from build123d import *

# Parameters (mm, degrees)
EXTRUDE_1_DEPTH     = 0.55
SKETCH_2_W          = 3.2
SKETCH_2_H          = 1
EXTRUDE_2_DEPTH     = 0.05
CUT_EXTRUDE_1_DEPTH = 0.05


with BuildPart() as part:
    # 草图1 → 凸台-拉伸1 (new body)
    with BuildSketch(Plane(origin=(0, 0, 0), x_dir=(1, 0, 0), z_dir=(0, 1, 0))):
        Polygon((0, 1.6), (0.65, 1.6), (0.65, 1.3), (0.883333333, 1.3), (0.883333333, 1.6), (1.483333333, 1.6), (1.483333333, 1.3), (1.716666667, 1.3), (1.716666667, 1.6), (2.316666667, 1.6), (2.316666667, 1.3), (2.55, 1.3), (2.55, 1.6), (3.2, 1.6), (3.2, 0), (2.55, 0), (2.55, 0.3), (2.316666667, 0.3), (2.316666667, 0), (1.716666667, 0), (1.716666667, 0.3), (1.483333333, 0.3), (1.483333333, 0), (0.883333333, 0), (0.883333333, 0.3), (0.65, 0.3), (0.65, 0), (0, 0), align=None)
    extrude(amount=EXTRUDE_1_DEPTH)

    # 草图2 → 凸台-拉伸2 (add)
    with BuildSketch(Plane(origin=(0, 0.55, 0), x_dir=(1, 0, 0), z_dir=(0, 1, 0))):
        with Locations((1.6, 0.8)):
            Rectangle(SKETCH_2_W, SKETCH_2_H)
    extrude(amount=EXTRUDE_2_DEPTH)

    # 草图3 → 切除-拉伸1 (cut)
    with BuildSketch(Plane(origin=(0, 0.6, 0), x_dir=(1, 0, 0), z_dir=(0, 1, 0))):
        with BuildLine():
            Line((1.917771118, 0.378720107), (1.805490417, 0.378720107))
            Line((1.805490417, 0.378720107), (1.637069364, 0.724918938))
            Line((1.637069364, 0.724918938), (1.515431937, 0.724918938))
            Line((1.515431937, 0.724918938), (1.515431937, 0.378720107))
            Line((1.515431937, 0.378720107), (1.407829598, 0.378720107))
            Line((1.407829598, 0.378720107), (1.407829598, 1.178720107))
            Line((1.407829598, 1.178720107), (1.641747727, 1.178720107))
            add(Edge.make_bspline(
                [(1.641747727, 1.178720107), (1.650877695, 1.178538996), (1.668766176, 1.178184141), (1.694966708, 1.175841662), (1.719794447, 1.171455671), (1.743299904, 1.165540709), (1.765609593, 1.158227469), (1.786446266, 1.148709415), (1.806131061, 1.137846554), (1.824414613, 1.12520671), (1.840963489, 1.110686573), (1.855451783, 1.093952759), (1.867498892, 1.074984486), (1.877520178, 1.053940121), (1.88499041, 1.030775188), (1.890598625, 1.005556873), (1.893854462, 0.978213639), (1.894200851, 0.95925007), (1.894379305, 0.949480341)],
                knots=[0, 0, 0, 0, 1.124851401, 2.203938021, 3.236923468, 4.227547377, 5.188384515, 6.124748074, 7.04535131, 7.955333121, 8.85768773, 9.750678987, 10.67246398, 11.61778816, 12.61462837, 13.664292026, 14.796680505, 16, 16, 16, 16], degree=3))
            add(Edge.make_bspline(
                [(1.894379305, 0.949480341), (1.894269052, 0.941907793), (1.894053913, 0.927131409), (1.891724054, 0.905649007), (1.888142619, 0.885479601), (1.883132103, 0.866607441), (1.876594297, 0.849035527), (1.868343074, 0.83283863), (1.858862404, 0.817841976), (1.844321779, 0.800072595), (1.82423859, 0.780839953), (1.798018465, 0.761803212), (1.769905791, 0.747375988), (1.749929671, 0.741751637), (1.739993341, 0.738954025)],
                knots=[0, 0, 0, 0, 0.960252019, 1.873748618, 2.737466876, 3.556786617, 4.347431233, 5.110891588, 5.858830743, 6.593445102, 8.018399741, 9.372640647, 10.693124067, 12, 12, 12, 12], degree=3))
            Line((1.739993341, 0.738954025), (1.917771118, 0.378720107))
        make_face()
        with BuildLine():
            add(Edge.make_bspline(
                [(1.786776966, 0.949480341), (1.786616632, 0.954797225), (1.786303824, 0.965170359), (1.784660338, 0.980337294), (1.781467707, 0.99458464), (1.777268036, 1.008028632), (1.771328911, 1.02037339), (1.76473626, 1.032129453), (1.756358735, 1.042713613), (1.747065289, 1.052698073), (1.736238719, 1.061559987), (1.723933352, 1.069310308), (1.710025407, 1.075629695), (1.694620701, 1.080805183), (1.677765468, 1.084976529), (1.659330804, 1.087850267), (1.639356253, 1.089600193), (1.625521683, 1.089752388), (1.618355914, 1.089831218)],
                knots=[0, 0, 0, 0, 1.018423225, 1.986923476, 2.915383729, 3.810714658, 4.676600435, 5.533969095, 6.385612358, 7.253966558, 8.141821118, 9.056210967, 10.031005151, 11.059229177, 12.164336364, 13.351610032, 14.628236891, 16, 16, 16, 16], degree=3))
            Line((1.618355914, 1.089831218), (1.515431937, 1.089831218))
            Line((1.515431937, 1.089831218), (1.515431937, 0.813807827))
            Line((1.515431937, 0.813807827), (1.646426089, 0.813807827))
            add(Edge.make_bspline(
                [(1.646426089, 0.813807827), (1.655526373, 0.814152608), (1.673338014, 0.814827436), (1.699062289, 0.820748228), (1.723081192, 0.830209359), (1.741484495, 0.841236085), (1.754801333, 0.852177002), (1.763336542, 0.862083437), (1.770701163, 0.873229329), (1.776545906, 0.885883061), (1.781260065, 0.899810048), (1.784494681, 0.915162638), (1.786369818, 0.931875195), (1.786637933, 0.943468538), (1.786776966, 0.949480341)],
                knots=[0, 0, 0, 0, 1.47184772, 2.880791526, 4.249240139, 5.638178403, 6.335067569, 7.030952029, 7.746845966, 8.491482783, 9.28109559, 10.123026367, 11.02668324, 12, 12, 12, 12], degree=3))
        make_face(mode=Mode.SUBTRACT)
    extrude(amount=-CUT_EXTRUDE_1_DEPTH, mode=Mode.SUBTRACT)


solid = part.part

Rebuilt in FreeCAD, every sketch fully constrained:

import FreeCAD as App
import Part
import Sketcher


def add_polygon(sketch, points):
    """Adds a closed chain of lines whose ends are joined by coincident constraints."""
    first, n = sketch.GeometryCount, len(points)
    for a, b in zip(points, points[1:] + points[:1]):
        sketch.addGeometry(Part.LineSegment(App.Vector(*a, 0), App.Vector(*b, 0)), False)
    for i in range(n):
        sketch.addConstraint(Sketcher.Constraint("Coincident", first + i, 2, first + (i + 1) % n, 1))

doc = App.newDocument("Part")
params = doc.addObject("Spreadsheet::Sheet", "Params")
for row, (alias, value) in enumerate([
    ("sketch1_width", "0.6 mm"),
    ("sketch1_height", "1.6 mm"),
    ("sketch1_height2", "0.3 mm"),
    ("sketch1_width2", "0.65 mm"),
    ("pad1_length", "0.55 mm"),
    ("sketch2_height", "1 mm"),
    ("sketch2_width", "3.2 mm"),
    ("pad2_length", "0.05 mm"),
    ("sketch3_height", "0.8 mm"),
    ("pocket1_length", "0.05 mm"),
], start=1):
    params.set(f"A{row}", alias)
    params.set(f"B{row}", "=" + value)
    params.setAlias(f"B{row}", alias)

body = doc.addObject("PartDesign::Body", "Body")

sketch1 = doc.addObject("Sketcher::SketchObject", "Sketch")
body.addObject(sketch1)
sketch1.AttachmentSupport = (doc.XZ_Plane, [""])
sketch1.MapMode = "FlatFace"
add_polygon(sketch1, [(0.65, -1.6), (0, -1.6), (0, 0), (0.65, 0), (0.65, -0.3), (0.883333, -0.3), (0.883333, 0), (1.483333, 0), (1.483333, -0.3), (1.716667, -0.3), (1.716667, 0), (2.316667, 0), (2.316667, -0.3), (2.55, -0.3), (2.55, 0), (3.2, 0), (3.2, -1.6), (2.55, -1.6), (2.55, -1.3), (2.316667, -1.3), (2.316667, -1.6), (1.716667, -1.6), (1.716667, -1.3), (1.483333, -1.3), (1.483333, -1.6), (0.883333, -1.6), (0.883333, -1.3), (0.65, -1.3)])
sketch1.addConstraint([
    Sketcher.Constraint("Horizontal", 0),
    Sketcher.Constraint("Vertical", 1),
    Sketcher.Constraint("Horizontal", 2),
    Sketcher.Constraint("Vertical", 3),
    Sketcher.Constraint("Horizontal", 4),
    Sketcher.Constraint("Vertical", 5),
    Sketcher.Constraint("Horizontal", 6),
    Sketcher.Constraint("Vertical", 7),
    Sketcher.Constraint("Horizontal", 8),
    Sketcher.Constraint("Vertical", 9),
    Sketcher.Constraint("Horizontal", 10),
    Sketcher.Constraint("Vertical", 11),
    Sketcher.Constraint("Horizontal", 12),
    Sketcher.Constraint("Vertical", 13),
    Sketcher.Constraint("Horizontal", 14),
    Sketcher.Constraint("Vertical", 15),
    Sketcher.Constraint("Horizontal", 16),
    Sketcher.Constraint("Vertical", 17),
    Sketcher.Constraint("Horizontal", 18),
    Sketcher.Constraint("Vertical", 19),
    Sketcher.Constraint("Horizontal", 20),
    Sketcher.Constraint("Vertical", 21),
    Sketcher.Constraint("Horizontal", 22),
    Sketcher.Constraint("Vertical", 23),
    Sketcher.Constraint("Horizontal", 24),
    Sketcher.Constraint("Vertical", 25),
    Sketcher.Constraint("Horizontal", 26),
    Sketcher.Constraint("Vertical", 27),
    Sketcher.Constraint("Coincident", 1, 2, -1, 1),
    Sketcher.Constraint("PointOnObject", 5, 2, -1),
    Sketcher.Constraint("PointOnObject", 9, 2, -1),
    Sketcher.Constraint("PointOnObject", 13, 2, -1),
    Sketcher.Constraint("Horizontal", 4, 2, 7, 2),
    Sketcher.Constraint("Horizontal", 8, 2, 11, 2),
    Sketcher.Constraint("Horizontal", 0, 2, 15, 2),
    Sketcher.Constraint("Horizontal", 16, 2, 19, 2),
    Sketcher.Constraint("Horizontal", 18, 2, 21, 2),
    Sketcher.Constraint("Horizontal", 20, 2, 23, 2),
    Sketcher.Constraint("Horizontal", 22, 2, 25, 2),
    Sketcher.Constraint("Vertical", 13, 2, 16, 2),
    Sketcher.Constraint("Vertical", 11, 2, 18, 2),
    Sketcher.Constraint("Vertical", 9, 2, 20, 2),
    Sketcher.Constraint("Vertical", 7, 2, 22, 2),
    Sketcher.Constraint("Vertical", 5, 2, 24, 2),
    Sketcher.Constraint("Vertical", 3, 2, 26, 2),
    Sketcher.Constraint("Equal", 4, 8),
    Sketcher.Constraint("Equal", 6, 10),
    Sketcher.Constraint("Equal", 8, 12),
    Sketcher.Constraint("Equal", 2, 14),
    Sketcher.Constraint("Equal", 13, 17),
    Sketcher.Constraint("DistanceX", 6, 1, 6, 2, 0.6),
    Sketcher.Constraint("DistanceY", 1, 1, 1, 2, 1.6),
    Sketcher.Constraint("DistanceY", 3, 2, 3, 1, 0.3),
    Sketcher.Constraint("DistanceX", 0, 2, 0, 1, 0.65),
    Sketcher.Constraint("DistanceX", -1, 1, 14, 2, 3.2),
])
sketch1.setExpression("Constraints[78]", "Params.sketch1_width")
sketch1.setExpression("Constraints[79]", "Params.sketch1_height")
sketch1.setExpression("Constraints[80]", "Params.sketch1_height2")
sketch1.setExpression("Constraints[81]", "Params.sketch1_width2")
pad1 = doc.addObject("PartDesign::Pad", "Pad")
body.addObject(pad1)
pad1.Profile = sketch1
pad1.setExpression("Length", "Params.pad1_length")
pad1.Reversed = True

sketch2 = doc.addObject("Sketcher::SketchObject", "Sketch001")
body.addObject(sketch2)
sketch2.AttachmentSupport = (doc.XZ_Plane, [""])
sketch2.MapMode = "FlatFace"
sketch2.AttachmentOffset = App.Placement(App.Vector(0, 0, -0.55), App.Rotation())
add_polygon(sketch2, [(0, -1.3), (0, -0.3), (3.2, -0.3), (3.2, -1.3)])
sketch2.addConstraint([
    Sketcher.Constraint("Vertical", 0),
    Sketcher.Constraint("Horizontal", 1),
    Sketcher.Constraint("Vertical", 2),
    Sketcher.Constraint("Horizontal", 3),
    Sketcher.Constraint("PointOnObject", 0, 2, -2),
    Sketcher.Constraint("DistanceY", 0, 1, 0, 2, 1.0),
    Sketcher.Constraint("DistanceX", 1, 1, 1, 2, 3.2),
    Sketcher.Constraint("DistanceY", 0, 2, -1, 1, 0.3),
])
sketch2.setExpression("Constraints[9]", "Params.sketch2_height")
sketch2.setExpression("Constraints[10]", "Params.sketch2_width")
pad2 = doc.addObject("PartDesign::Pad", "Pad001")
body.addObject(pad2)
pad2.Profile = sketch2
pad2.setExpression("Length", "Params.pad2_length")
pad2.Reversed = True

sketch3 = doc.addObject("Sketcher::SketchObject", "Sketch002")
body.addObject(sketch3)
sketch3.AttachmentSupport = (doc.XZ_Plane, [""])
sketch3.MapMode = "FlatFace"
sketch3.AttachmentOffset = App.Placement(App.Vector(0, 0, -0.6), App.Rotation())
sketch3.addGeometry([
    Part.LineSegment(App.Vector(1.80549, -0.37872, 0), App.Vector(1.917771, -0.37872, 0)),
    Part.LineSegment(App.Vector(1.917771, -0.37872, 0), App.Vector(1.739993, -0.738954, 0)),
    Part.BSplineCurve([App.Vector(1.894379, -0.94948, 0), App.Vector(1.894269, -0.941908, 0), App.Vector(1.894054, -0.927131, 0), App.Vector(1.891724, -0.905649, 0), App.Vector(1.888143, -0.88548, 0), App.Vector(1.883132, -0.866607, 0), App.Vector(1.876594, -0.849036, 0), App.Vector(1.868343, -0.832839, 0), App.Vector(1.858862, -0.817842, 0), App.Vector(1.844322, -0.800073, 0), App.Vector(1.824239, -0.78084, 0), App.Vector(1.798018, -0.761803, 0), App.Vector(1.769906, -0.747376, 0), App.Vector(1.74993, -0.741752, 0), App.Vector(1.739993, -0.738954, 0)], [4, 1, 1, 1, 1, 1, 1, 1, 1, 1, 1, 1, 4], [0, 0.960252019, 1.873748618, 2.737466876, 3.556786617, 4.347431233, 5.110891588, 5.858830743, 6.593445102, 8.018399741, 9.372640647, 10.693124067, 12], False, 3, [1, 1, 1, 1, 1, 1, 1, 1, 1, 1, 1, 1, 1, 1, 1], False),
    Part.BSplineCurve([App.Vector(1.641748, -1.17872, 0), App.Vector(1.650878, -1.178539, 0), App.Vector(1.668766, -1.178184, 0), App.Vector(1.694967, -1.175842, 0), App.Vector(1.719794, -1.171456, 0), App.Vector(1.7433, -1.165541, 0), App.Vector(1.76561, -1.158227, 0), App.Vector(1.786446, -1.148709, 0), App.Vector(1.806131, -1.137847, 0), App.Vector(1.824415, -1.125207, 0), App.Vector(1.840963, -1.110687, 0), App.Vector(1.855452, -1.093953, 0), App.Vector(1.867499, -1.074984, 0), App.Vector(1.87752, -1.05394, 0), App.Vector(1.88499, -1.030775, 0), App.Vector(1.890599, -1.005557, 0), App.Vector(1.893854, -0.978214, 0), App.Vector(1.894201, -0.95925, 0), App.Vector(1.894379, -0.94948, 0)], [4, 1, 1, 1, 1, 1, 1, 1, 1, 1, 1, 1, 1, 1, 1, 1, 4], [0, 1.124851401, 2.203938021, 3.236923468, 4.227547377, 5.188384515, 6.124748074, 7.04535131, 7.955333121, 8.85768773, 9.750678987, 10.67246398, 11.61778816, 12.61462837, 13.664292026, 14.796680505, 16], False, 3, [1, 1, 1, 1, 1, 1, 1, 1, 1, 1, 1, 1, 1, 1, 1, 1, 1, 1, 1], False),
    Part.LineSegment(App.Vector(1.641748, -1.17872, 0), App.Vector(1.40783, -1.17872, 0)),
    Part.LineSegment(App.Vector(1.40783, -1.17872, 0), App.Vector(1.40783, -0.37872, 0)),
    Part.LineSegment(App.Vector(1.40783, -0.37872, 0), App.Vector(1.515432, -0.37872, 0)),
    Part.LineSegment(App.Vector(1.515432, -0.37872, 0), App.Vector(1.515432, -0.724919, 0)),
    Part.LineSegment(App.Vector(1.515432, -0.724919, 0), App.Vector(1.637069, -0.724919, 0)),
    Part.LineSegment(App.Vector(1.637069, -0.724919, 0), App.Vector(1.80549, -0.37872, 0)),
    Part.BSplineCurve([App.Vector(1.646426, -0.813808, 0), App.Vector(1.655526, -0.814153, 0), App.Vector(1.673338, -0.814827, 0), App.Vector(1.699062, -0.820748, 0), App.Vector(1.723081, -0.830209, 0), App.Vector(1.741484, -0.841236, 0), App.Vector(1.754801, -0.852177, 0), App.Vector(1.763337, -0.862083, 0), App.Vector(1.770701, -0.873229, 0), App.Vector(1.776546, -0.885883, 0), App.Vector(1.78126, -0.89981, 0), App.Vector(1.784495, -0.915163, 0), App.Vector(1.78637, -0.931875, 0), App.Vector(1.786638, -0.943469, 0), App.Vector(1.786777, -0.94948, 0)], [4, 1, 1, 1, 1, 1, 1, 1, 1, 1, 1, 1, 4], [0, 1.47184772, 2.880791526, 4.249240139, 5.638178403, 6.335067569, 7.030952029, 7.746845966, 8.491482783, 9.28109559, 10.123026367, 11.02668324, 12], False, 3, [1, 1, 1, 1, 1, 1, 1, 1, 1, 1, 1, 1, 1, 1, 1], False),
    Part.LineSegment(App.Vector(1.646426, -0.813808, 0), App.Vector(1.515432, -0.813808, 0)),
    Part.LineSegment(App.Vector(1.515432, -0.813808, 0), App.Vector(1.515432, -1.089831, 0)),
    Part.LineSegment(App.Vector(1.515432, -1.089831, 0), App.Vector(1.618356, -1.089831, 0)),
    Part.BSplineCurve([App.Vector(1.786777, -0.94948, 0), App.Vector(1.786617, -0.954797, 0), App.Vector(1.786304, -0.96517, 0), App.Vector(1.78466, -0.980337, 0), App.Vector(1.781468, -0.994585, 0), App.Vector(1.777268, -1.008029, 0), App.Vector(1.771329, -1.020373, 0), App.Vector(1.764736, -1.032129, 0), App.Vector(1.756359, -1.042714, 0), App.Vector(1.747065, -1.052698, 0), App.Vector(1.736239, -1.06156, 0), App.Vector(1.723933, -1.06931, 0), App.Vector(1.710025, -1.07563, 0), App.Vector(1.694621, -1.080805, 0), App.Vector(1.677765, -1.084977, 0), App.Vector(1.659331, -1.08785, 0), App.Vector(1.639356, -1.0896, 0), App.Vector(1.625522, -1.089752, 0), App.Vector(1.618356, -1.089831, 0)], [4, 1, 1, 1, 1, 1, 1, 1, 1, 1, 1, 1, 1, 1, 1, 1, 4], [0, 1.018423225, 1.986923476, 2.915383729, 3.810714658, 4.676600435, 5.533969095, 6.385612358, 7.253966558, 8.141821118, 9.056210967, 10.031005151, 11.059229177, 12.164336364, 13.351610032, 14.628236891, 16], False, 3, [1, 1, 1, 1, 1, 1, 1, 1, 1, 1, 1, 1, 1, 1, 1, 1, 1, 1, 1], False),
], False)
sketch3.addConstraint([
    Sketcher.Constraint("Block", 2),
    Sketcher.Constraint("Block", 3),
    Sketcher.Constraint("Block", 10),
    Sketcher.Constraint("Block", 14),
    Sketcher.Constraint("Coincident", 0, 2, 1, 1),
    Sketcher.Constraint("Coincident", 1, 2, 2, 2),
    Sketcher.Constraint("Coincident", 3, 1, 4, 1),
    Sketcher.Constraint("Coincident", 4, 2, 5, 1),
    Sketcher.Constraint("Coincident", 5, 2, 6, 1),
    Sketcher.Constraint("Coincident", 6, 2, 7, 1),
    Sketcher.Constraint("Coincident", 7, 2, 8, 1),
    Sketcher.Constraint("Coincident", 8, 2, 9, 1),
    Sketcher.Constraint("Coincident", 9, 2, 0, 1),
    Sketcher.Constraint("Coincident", 10, 1, 11, 1),
    Sketcher.Constraint("Coincident", 11, 2, 12, 1),
    Sketcher.Constraint("Coincident", 12, 2, 13, 1),
    Sketcher.Constraint("Coincident", 13, 2, 14, 2),
    Sketcher.Constraint("Horizontal", 0),
    Sketcher.Constraint("Horizontal", 4),
    Sketcher.Constraint("Vertical", 5),
    Sketcher.Constraint("Horizontal", 6),
    Sketcher.Constraint("Vertical", 7),
    Sketcher.Constraint("Horizontal", 8),
    Sketcher.Constraint("Horizontal", 11),
    Sketcher.Constraint("Vertical", 12),
    Sketcher.Constraint("Horizontal", 13),
    Sketcher.Constraint("Horizontal", 0, 2, 5, 2),
    Sketcher.Constraint("Vertical", 7, 2, 11, 2),
    Sketcher.Constraint("DistanceY", 5, 1, 5, 2, 0.8),
    Sketcher.Constraint("DistanceY", 7, 2, 7, 1, 0.346199),
    Sketcher.Constraint("DistanceX", 0, 1, 0, 2, 0.112281),
    Sketcher.Constraint("DistanceX", 4, 2, 4, 1, 0.233918),
    Sketcher.Constraint("DistanceX", 8, 2, 0, 2, 0.280702),
    Sketcher.Constraint("DistanceX", 6, 1, 6, 2, 0.107602),
    Sketcher.Constraint("DistanceX", 8, 1, 8, 2, 0.121637),
])
sketch3.setExpression("Constraints[28]", "Params.sketch3_height")
pocket1 = doc.addObject("PartDesign::Pocket", "Pocket")
body.addObject(pocket1)
pocket1.Profile = sketch3
pocket1.setExpression("Length", "Params.pocket1_length")
pocket1.Reversed = True

doc.recompute()
